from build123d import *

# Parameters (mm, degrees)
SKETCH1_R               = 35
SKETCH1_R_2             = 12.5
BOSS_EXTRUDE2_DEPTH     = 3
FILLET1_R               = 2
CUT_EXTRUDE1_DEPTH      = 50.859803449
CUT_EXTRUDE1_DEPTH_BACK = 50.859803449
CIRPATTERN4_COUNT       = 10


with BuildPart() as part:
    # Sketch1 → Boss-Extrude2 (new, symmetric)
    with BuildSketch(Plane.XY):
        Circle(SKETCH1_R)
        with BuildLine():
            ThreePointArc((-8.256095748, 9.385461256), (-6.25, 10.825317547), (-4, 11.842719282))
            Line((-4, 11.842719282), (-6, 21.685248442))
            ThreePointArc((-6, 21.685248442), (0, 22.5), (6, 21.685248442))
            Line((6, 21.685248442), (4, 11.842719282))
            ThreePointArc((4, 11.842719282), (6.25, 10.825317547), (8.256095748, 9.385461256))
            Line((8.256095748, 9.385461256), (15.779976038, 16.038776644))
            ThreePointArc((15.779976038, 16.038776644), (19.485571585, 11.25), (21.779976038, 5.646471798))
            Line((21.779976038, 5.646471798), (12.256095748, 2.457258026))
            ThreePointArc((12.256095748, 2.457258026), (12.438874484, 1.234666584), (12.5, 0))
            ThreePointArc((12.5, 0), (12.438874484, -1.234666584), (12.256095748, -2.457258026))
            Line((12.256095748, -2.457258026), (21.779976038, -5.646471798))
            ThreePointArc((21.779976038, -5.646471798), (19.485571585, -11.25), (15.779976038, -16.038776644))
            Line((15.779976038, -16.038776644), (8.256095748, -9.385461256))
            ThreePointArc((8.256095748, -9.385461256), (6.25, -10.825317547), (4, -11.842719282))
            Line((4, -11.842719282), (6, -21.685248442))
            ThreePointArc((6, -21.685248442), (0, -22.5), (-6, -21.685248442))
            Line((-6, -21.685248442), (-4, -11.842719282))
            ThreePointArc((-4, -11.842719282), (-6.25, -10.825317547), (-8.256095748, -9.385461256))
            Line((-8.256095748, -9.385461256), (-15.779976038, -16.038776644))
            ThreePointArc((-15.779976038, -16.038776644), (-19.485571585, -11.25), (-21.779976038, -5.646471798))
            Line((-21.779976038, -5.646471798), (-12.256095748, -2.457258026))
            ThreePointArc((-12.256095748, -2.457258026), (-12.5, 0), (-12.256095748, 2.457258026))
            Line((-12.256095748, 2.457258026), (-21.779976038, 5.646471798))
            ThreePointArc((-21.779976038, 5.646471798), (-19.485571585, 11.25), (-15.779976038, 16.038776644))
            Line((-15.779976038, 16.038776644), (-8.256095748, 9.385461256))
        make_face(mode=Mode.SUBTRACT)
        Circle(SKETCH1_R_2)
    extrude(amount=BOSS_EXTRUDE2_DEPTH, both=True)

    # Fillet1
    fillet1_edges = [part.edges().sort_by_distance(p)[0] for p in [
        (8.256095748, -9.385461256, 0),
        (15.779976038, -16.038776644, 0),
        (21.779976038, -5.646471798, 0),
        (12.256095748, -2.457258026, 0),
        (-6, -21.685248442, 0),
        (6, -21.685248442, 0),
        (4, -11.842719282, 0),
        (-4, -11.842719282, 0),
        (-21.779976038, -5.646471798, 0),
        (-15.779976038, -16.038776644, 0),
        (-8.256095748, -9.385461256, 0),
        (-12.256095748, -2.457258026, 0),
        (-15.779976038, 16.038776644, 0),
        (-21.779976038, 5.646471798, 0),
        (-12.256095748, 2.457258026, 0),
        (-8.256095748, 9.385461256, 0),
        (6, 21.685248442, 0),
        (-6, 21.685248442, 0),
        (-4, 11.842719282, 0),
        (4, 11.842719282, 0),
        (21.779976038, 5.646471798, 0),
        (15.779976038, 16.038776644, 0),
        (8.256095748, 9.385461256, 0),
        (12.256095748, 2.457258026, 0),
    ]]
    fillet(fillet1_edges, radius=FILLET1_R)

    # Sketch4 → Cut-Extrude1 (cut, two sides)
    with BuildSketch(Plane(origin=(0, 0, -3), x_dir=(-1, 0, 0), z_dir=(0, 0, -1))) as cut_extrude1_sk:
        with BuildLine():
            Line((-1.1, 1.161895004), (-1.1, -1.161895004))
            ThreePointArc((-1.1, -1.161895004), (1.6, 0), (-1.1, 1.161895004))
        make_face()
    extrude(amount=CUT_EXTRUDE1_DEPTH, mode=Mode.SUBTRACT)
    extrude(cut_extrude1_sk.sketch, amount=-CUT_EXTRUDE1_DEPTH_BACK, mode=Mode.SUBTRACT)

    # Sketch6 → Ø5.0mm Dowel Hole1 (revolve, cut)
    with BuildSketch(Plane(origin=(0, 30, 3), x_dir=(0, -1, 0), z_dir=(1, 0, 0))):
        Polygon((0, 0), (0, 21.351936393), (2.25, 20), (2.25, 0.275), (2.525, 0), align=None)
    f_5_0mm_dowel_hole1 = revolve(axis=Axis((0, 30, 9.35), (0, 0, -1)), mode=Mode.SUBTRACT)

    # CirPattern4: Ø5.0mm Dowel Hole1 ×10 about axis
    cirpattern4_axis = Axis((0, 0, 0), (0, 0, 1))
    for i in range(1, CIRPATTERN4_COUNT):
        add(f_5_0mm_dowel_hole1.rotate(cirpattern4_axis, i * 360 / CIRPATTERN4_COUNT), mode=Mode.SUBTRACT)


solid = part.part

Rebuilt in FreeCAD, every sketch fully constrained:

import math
import FreeCAD as App
import Part
import Sketcher

V = App.Vector
Q = App.Units.Quantity


def edges_at(feature, points):
    """Names of the edges that pass closest to the given points."""
    edges = feature.Shape.Edges
    near = lambda p: min(range(len(edges)), key=lambda i: edges[i].distToShape(Part.Vertex(*p))[0])
    return sorted({f"Edge{near(p) + 1}" for p in points})


def add_polygon(sketch, points):
    """Adds a closed chain of lines whose ends are joined by coincident constraints."""
    first, n = sketch.GeometryCount, len(points)
    for a, b in zip(points, points[1:] + points[:1]):
        sketch.addGeometry(Part.LineSegment(App.Vector(*a, 0), App.Vector(*b, 0)), False)
    for i in range(n):
        sketch.addConstraint(Sketcher.Constraint("Coincident", first + i, 2, first + (i + 1) % n, 1))

doc = App.newDocument("Part")
body = doc.addObject("PartDesign::Body", "Body")

sketch1 = doc.addObject("Sketcher::SketchObject", "Sketch")
body.addObject(sketch1)
sketch1.AttachmentSupport = (doc.XY_Plane, [""])
sketch1.MapMode = "FlatFace"
sketch1.addGeometry([
    Part.Circle(V(0, 0, 0), V(0, 0, 1), 35),
    Part.LineSegment(V(-16, 16, 0), V(-8, 9, 0)),
    Part.ArcOfCircle(Part.Circle(V(0, 0, 0), V(0, 0, 1), 12), math.radians(131), math.radians(169)),
    Part.LineSegment(V(-12, 2, 0), V(-22, 6, 0)),
    Part.ArcOfCircle(Part.Circle(V(0, 0, 0), V(0, 0, 1), 22), math.radians(135), math.radians(165)),
    Part.LineSegment(V(-22, -6, 0), V(-12, -2, 0)),
    Part.ArcOfCircle(Part.Circle(V(0, 0, 0), V(0, 0, 1), 12), math.radians(-169), math.radians(-131)),
    Part.LineSegment(V(-8, -9, 0), V(-16, -16, 0)),
    Part.ArcOfCircle(Part.Circle(V(0, 0, 0), V(0, 0, 1), 22), math.radians(-165), math.radians(-135)),
    Part.LineSegment(V(-6, -22, 0), V(-4, -12, 0)),
    Part.ArcOfCircle(Part.Circle(V(0, 0, 0), V(0, 0, 1), 12), math.radians(-109), math.radians(-71)),
    Part.LineSegment(V(4, -12, 0), V(6, -22, 0)),
    Part.ArcOfCircle(Part.Circle(V(0, 0, 0), V(0, 0, 1), 22), math.radians(-105), math.radians(-75)),
    Part.LineSegment(V(16, -16, 0), V(8, -9, 0)),
    Part.ArcOfCircle(Part.Circle(V(0, 0, 0), V(0, 0, 1), 12), math.radians(-49), math.radians(-11)),
    Part.LineSegment(V(12, -2, 0), V(22, -6, 0)),
    Part.ArcOfCircle(Part.Circle(V(0, 0, 0), V(0, 0, 1), 22), math.radians(-45), math.radians(-15)),
    Part.LineSegment(V(22, 6, 0), V(12, 2, 0)),
    Part.ArcOfCircle(Part.Circle(V(0, 0, 0), V(0, 0, 1), 12), math.radians(11), math.radians(49)),
    Part.LineSegment(V(8, 9, 0), V(16, 16, 0)),
    Part.ArcOfCircle(Part.Circle(V(0, 0, 0), V(0, 0, 1), 22), math.radians(15), math.radians(45)),
    Part.LineSegment(V(6, 22, 0), V(4, 12, 0)),
    Part.ArcOfCircle(Part.Circle(V(0, 0, 0), V(0, 0, 1), 12), math.radians(71), math.radians(109)),
    Part.LineSegment(V(-4, 12, 0), V(-6, 22, 0)),
    Part.ArcOfCircle(Part.Circle(V(0, 0, 0), V(0, 0, 1), 22), math.radians(75), math.radians(105)),
], False)
sketch1.addConstraint([
    Sketcher.Constraint("Coincident", 1, 2, 2, 1),
    Sketcher.Constraint("Coincident", 2, 2, 3, 1),
    Sketcher.Constraint("Coincident", 3, 2, 4, 2),
    Sketcher.Constraint("Coincident", 4, 1, 1, 1),
    Sketcher.Constraint("Coincident", 5, 2, 6, 1),
    Sketcher.Constraint("Coincident", 6, 2, 7, 1),
    Sketcher.Constraint("Coincident", 7, 2, 8, 2),
    Sketcher.Constraint("Coincident", 8, 1, 5, 1),
    Sketcher.Constraint("Coincident", 9, 2, 10, 1),
    Sketcher.Constraint("Coincident", 10, 2, 11, 1),
    Sketcher.Constraint("Coincident", 11, 2, 12, 2),
    Sketcher.Constraint("Coincident", 12, 1, 9, 1),
    Sketcher.Constraint("Coincident", 13, 2, 14, 1),
    Sketcher.Constraint("Coincident", 14, 2, 15, 1),
    Sketcher.Constraint("Coincident", 15, 2, 16, 2),
    Sketcher.Constraint("Coincident", 16, 1, 13, 1),
    Sketcher.Constraint("Coincident", 17, 2, 18, 1),
    Sketcher.Constraint("Coincident", 18, 2, 19, 1),
    Sketcher.Constraint("Coincident", 19, 2, 20, 2),
    Sketcher.Constraint("Coincident", 20, 1, 17, 1),
    Sketcher.Constraint("Coincident", 21, 2, 22, 1),
    Sketcher.Constraint("Coincident", 22, 2, 23, 1),
    Sketcher.Constraint("Coincident", 23, 2, 24, 2),
    Sketcher.Constraint("Coincident", 24, 1, 21, 1),
    Sketcher.Constraint("Coincident", 0, 3, -1, 1),
    Sketcher.Constraint("Coincident", 2, 3, -1, 1),
    Sketcher.Constraint("Coincident", 4, 3, -1, 1),
    Sketcher.Constraint("Coincident", 6, 3, -1, 1),
    Sketcher.Constraint("Coincident", 8, 3, -1, 1),
    Sketcher.Constraint("Coincident", 10, 3, -1, 1),
    Sketcher.Constraint("Coincident", 12, 3, -1, 1),
    Sketcher.Constraint("Coincident", 14, 3, -1, 1),
    Sketcher.Constraint("Coincident", 16, 3, -1, 1),
    Sketcher.Constraint("Coincident", 18, 3, -1, 1),
    Sketcher.Constraint("Coincident", 20, 3, -1, 1),
    Sketcher.Constraint("Coincident", 22, 3, -1, 1),
    Sketcher.Constraint("Coincident", 24, 3, -1, 1),
    Sketcher.Constraint("Equal", 2, 6),
    Sketcher.Constraint("Equal", 4, 8),
    Sketcher.Constraint("Equal", 6, 10),
    Sketcher.Constraint("Equal", 8, 12),
    Sketcher.Constraint("Equal", 10, 14),
    Sketcher.Constraint("Equal", 12, 16),
    Sketcher.Constraint("Equal", 14, 18),
    Sketcher.Constraint("Equal", 16, 20),
    Sketcher.Constraint("Equal", 18, 22),
    Sketcher.Constraint("Equal", 20, 24),
    Sketcher.Constraint("Parallel", 1, 13),
    Sketcher.Constraint("Parallel", 3, 15),
    Sketcher.Constraint("Parallel", 5, 17),
    Sketcher.Constraint("Parallel", 7, 19),
    Sketcher.Constraint("Parallel", 9, 21),
    Sketcher.Constraint("Parallel", 11, 23),
    Sketcher.Constraint("Horizontal", 9, 2, 10, 2),
    Sketcher.Constraint("Horizontal", 11, 2, 12, 1),
    Sketcher.Constraint("Horizontal", 6, 2, 13, 2),
    Sketcher.Constraint("Horizontal", 5, 2, 14, 2),
    Sketcher.Constraint("Horizontal", 8, 1, 15, 2),
    Sketcher.Constraint("Horizontal", 7, 2, 16, 1),
    Sketcher.Constraint("Horizontal", 2, 2, 17, 2),
    Sketcher.Constraint("Horizontal", 1, 2, 18, 2),
    Sketcher.Constraint("Horizontal", 21, 2, 22, 2),
    Sketcher.Constraint("Vertical", 2, 2, 5, 2),
    Sketcher.Constraint("Vertical", 1, 2, 6, 2),
    Sketcher.Constraint("Vertical", 10, 2, 21, 2),
    Sketcher.Constraint("Equal", 1, 3),
    Sketcher.Constraint("Equal", 7, 9),
    Sketcher.Constraint("Diameter", 0, 70.0),
    Sketcher.Constraint("Radius", 2, 12.5),
    Sketcher.Constraint("Radius", 4, 22.5),
    Sketcher.Constraint("DistanceX", 9, 2, -1, 1, 4.0),
    Sketcher.Constraint("DistanceX", -1, 1, 11, 2, 6.0),
    Sketcher.Constraint("DistanceX", 2, 2, 1, 2, 4.0),
    Sketcher.Constraint("DistanceX", 8, 1, 7, 2, 6.0),
])
pad1 = doc.addObject("PartDesign::Pad", "Pad")
body.addObject(pad1)
pad1.Profile = sketch1
pad1.Length = 6
pad1.Midplane = True
doc.recompute()

fillet = doc.addObject("PartDesign::Fillet", "Fillet")
body.addObject(fillet)
fillet.Base = (pad1, edges_at(pad1, [
    (8.256, -9.385, 0),
    (15.78, -16.039, 0),
    (21.78, -5.646, 0),
    (12.256, -2.457, 0),
    (-6, -21.685, 0),
    (6, -21.685, 0),
    (4, -11.843, 0),
    (-4, -11.843, 0),
    (-21.78, -5.646, 0),
    (-15.78, -16.039, 0),
    (-8.256, -9.385, 0),
    (-12.256, -2.457, 0),
    (-15.78, 16.039, 0),
    (-21.78, 5.646, 0),
    (-12.256, 2.457, 0),
    (-8.256, 9.385, 0),
    (6, 21.685, 0),
    (-6, 21.685, 0),
    (-4, 11.843, 0),
    (4, 11.843, 0),
    (21.78, 5.646, 0),
    (15.78, 16.039, 0),
    (8.256, 9.385, 0),
    (12.256, 2.457, 0),
]))
fillet.Radius = 2

sketch2 = doc.addObject("Sketcher::SketchObject", "Sketch001")
body.addObject(sketch2)
sketch2.AttachmentSupport = (doc.XY_Plane, [""])
sketch2.MapMode = "FlatFace"
sketch2.AttachmentOffset = App.Placement(V(0, 0, -3), App.Rotation())
sketch2.addGeometry([
    Part.LineSegment(V(1.1, 1.2, 0), V(1.1, -1.2, 0)),
    Part.ArcOfCircle(Part.Circle(V(0, 0, 0), V(0, 0, 1), 1.6), math.radians(47), math.radians(313)),
], False)
sketch2.addConstraint([
    Sketcher.Constraint("Coincident", 0, 1, 1, 1),
    Sketcher.Constraint("Coincident", 1, 2, 0, 2),
    Sketcher.Constraint("Vertical", 0),
    Sketcher.Constraint("Coincident", 1, 3, -1, 1),
    Sketcher.Constraint("Radius", 1, 1.6),
    Sketcher.Constraint("DistanceX", -1, 1, 0, 1, 1.1),
])
pocket1 = doc.addObject("PartDesign::Pocket", "Pocket")
body.addObject(pocket1)
pocket1.Profile = sketch2
pocket1.Type = "ThroughAll"
pocket1.Midplane = True

sketch3 = doc.addObject("Sketcher::SketchObject", "Sketch002")
body.addObject(sketch3)
sketch3.AttachmentSupport = (doc.YZ_Plane, [""])
sketch3.MapMode = "FlatFace"
add_polygon(sketch3, [(30, -18.35), (30, 3), (27.48, 3), (27.75, 2.73), (27.75, -17)])
sketch3.addGeometry(Part.LineSegment(V(30, 3, 0), V(30, -18.35, 0)), True)
sketch3.addConstraint([
    Sketcher.Constraint("Vertical", 0),
    Sketcher.Constraint("Horizontal", 1),
    Sketcher.Constraint("Vertical", 3),
    Sketcher.Constraint("Vertical", 5),
    Sketcher.Constraint("Coincident", 5, 1, 0, 2),
    Sketcher.Constraint("Equal", 0, 5),
    Sketcher.Constraint("Angle", 2, Q("-45 deg")),
    Sketcher.Constraint("Angle", 4, Q("-31 deg")),
    Sketcher.Constraint("DistanceX", -1, 1, 0, 2, 30.0),
    Sketcher.Constraint("DistanceY", -1, 1, 0, 2, 3.0),
    Sketcher.Constraint("DistanceY", 3, 2, -1, 1, 17.0),
    Sketcher.Constraint("DistanceX", 1, 2, 1, 1, 2.525),
    Sketcher.Constraint("DistanceY", 3, 2, 3, 1, 19.725),
])
groove = doc.addObject("PartDesign::Groove", "Groove")
body.addObject(groove)
groove.Profile = sketch3
groove.ReferenceAxis = (sketch3, ["Axis0"])
groove.Angle = 360
doc.recompute()

polarpattern = doc.addObject("PartDesign::PolarPattern", "PolarPattern")
body.addObject(polarpattern)
polarpattern.Originals = [groove]
polarpattern.Axis = (doc.Z_Axis, [""])
polarpattern.Angle = 360
polarpattern.Occurrences = 10
body.Tip = polarpattern

doc.recompute()
